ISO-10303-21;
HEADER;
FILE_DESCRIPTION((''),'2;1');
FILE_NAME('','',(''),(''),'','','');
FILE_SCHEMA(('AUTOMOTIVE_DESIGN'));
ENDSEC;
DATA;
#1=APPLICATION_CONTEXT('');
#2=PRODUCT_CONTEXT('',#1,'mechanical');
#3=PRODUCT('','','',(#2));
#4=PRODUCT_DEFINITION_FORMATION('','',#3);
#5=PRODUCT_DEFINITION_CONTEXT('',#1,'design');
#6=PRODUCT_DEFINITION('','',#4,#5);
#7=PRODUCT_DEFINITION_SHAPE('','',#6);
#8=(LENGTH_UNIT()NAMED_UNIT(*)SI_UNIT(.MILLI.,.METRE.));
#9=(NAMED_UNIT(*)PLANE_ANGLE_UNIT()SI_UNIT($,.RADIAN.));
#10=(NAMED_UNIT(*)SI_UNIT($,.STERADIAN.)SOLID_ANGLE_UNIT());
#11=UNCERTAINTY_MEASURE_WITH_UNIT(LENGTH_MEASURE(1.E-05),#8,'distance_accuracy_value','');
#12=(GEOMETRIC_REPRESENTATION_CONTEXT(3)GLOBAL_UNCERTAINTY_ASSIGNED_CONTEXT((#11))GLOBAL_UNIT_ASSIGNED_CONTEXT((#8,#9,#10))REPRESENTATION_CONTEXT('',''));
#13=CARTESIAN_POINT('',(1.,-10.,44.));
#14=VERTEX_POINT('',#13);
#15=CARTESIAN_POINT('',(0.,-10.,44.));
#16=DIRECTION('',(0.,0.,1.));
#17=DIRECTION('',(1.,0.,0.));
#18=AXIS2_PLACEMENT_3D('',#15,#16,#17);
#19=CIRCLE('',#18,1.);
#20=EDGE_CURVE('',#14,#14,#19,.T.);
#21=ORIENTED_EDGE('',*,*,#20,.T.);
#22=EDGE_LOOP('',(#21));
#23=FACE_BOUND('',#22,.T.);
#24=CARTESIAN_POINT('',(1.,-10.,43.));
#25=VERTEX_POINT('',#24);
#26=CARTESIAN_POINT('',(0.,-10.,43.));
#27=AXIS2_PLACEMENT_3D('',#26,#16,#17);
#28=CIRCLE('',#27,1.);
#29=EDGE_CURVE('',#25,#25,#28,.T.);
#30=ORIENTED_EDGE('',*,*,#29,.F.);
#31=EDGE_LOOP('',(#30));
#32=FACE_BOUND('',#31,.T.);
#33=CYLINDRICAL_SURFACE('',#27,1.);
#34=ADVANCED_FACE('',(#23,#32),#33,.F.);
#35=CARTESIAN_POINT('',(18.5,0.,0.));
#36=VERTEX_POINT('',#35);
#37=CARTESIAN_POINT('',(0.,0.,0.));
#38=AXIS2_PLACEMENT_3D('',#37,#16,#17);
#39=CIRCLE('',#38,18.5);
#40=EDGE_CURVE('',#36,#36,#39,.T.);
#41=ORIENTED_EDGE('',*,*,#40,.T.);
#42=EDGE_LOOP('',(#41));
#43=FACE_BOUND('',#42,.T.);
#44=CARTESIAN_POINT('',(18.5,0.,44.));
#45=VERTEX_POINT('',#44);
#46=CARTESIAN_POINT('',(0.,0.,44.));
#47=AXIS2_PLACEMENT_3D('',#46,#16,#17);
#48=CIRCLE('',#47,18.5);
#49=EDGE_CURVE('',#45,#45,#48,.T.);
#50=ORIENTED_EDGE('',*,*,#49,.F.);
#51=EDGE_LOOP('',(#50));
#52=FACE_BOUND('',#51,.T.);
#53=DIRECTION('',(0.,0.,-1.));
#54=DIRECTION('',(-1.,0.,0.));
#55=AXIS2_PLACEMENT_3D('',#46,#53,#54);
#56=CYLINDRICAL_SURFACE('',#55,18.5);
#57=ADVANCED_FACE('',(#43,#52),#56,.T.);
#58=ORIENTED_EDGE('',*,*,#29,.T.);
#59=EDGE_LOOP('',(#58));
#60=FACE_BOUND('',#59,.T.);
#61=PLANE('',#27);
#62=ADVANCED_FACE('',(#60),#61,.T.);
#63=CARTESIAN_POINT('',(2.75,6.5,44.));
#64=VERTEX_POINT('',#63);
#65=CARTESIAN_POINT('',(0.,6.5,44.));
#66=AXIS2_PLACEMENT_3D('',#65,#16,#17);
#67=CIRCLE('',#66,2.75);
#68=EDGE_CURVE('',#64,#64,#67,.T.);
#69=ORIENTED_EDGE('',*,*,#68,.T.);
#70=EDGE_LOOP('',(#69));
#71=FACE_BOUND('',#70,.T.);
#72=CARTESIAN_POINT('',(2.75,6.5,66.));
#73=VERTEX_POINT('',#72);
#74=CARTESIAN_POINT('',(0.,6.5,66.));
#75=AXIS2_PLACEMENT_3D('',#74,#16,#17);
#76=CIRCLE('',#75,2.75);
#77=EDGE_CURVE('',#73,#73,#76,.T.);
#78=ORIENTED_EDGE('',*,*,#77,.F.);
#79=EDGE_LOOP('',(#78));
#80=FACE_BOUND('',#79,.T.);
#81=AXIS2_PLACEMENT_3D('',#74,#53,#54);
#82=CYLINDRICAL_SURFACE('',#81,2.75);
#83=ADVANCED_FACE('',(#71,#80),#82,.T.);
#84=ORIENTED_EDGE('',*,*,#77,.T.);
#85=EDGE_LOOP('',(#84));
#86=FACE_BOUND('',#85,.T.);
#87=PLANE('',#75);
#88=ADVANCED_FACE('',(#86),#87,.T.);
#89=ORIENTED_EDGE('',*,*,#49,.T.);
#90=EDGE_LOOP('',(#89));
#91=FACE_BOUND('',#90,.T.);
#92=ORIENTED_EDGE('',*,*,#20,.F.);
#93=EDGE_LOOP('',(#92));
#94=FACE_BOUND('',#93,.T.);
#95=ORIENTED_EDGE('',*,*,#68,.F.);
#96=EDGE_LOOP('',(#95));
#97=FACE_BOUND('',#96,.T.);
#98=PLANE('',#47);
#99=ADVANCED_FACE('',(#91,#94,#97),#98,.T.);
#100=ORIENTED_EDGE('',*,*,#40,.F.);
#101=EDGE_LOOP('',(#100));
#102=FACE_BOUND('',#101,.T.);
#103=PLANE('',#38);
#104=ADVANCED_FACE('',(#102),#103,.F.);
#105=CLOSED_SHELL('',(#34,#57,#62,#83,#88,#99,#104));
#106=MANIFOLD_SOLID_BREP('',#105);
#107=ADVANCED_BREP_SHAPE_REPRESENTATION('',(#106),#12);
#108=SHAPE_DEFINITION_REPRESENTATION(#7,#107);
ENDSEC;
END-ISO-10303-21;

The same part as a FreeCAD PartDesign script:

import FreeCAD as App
import Part
import Sketcher
from FreeCAD import Vector
Q = App.Units.Quantity

doc = App.newDocument("Part")
body = doc.addObject("PartDesign::Body", "Body")

# Sketch on XY plane
sketch1 = body.newObject("Sketcher::SketchObject", "Sketch")
sketch1.AttachmentSupport = (doc.getObject("XY_Plane"), [""])
sketch1.MapMode = "FlatFace"
sketch1.addGeometry(Part.Circle(Vector(0, 0, 0), Vector(0, 0, 1), 18), False)
sketch1.addConstraint([
    Sketcher.Constraint("Coincident", 0, 3, -1, 1),
    Sketcher.Constraint("Diameter", 0, Q("37 mm")),
])
pad1 = body.newObject("PartDesign::Pad", "Pad")
pad1.Profile = sketch1
pad1.Length = 44

# Sketch on XY plane
sketch2 = body.newObject("Sketcher::SketchObject", "Sketch001")
sketch2.AttachmentSupport = (doc.getObject("XY_Plane"), [""])
sketch2.MapMode = "FlatFace"
sketch2.AttachmentOffset = App.Placement(Vector(0, 0, 44), App.Rotation())
sketch2.addGeometry(Part.Circle(Vector(0, 6.5, 0), Vector(0, 0, 1), 2.8), False)
sketch2.addConstraint([
    Sketcher.Constraint("PointOnObject", 0, 3, -2),
    Sketcher.Constraint("Diameter", 0, Q("5.5 mm")),
    Sketcher.Constraint("DistanceY", -1, 1, 0, 3, Q("6.5 mm")),
])
pad2 = body.newObject("PartDesign::Pad", "Pad001")
pad2.Profile = sketch2
pad2.Length = 22

# Sketch on XY plane
sketch3 = body.newObject("Sketcher::SketchObject", "Sketch002")
sketch3.AttachmentSupport = (doc.getObject("XY_Plane"), [""])
sketch3.MapMode = "FlatFace"
sketch3.AttachmentOffset = App.Placement(Vector(0, 0, 44), App.Rotation())
sketch3.addGeometry(Part.Circle(Vector(0, -10, 0), Vector(0, 0, 1), 1), False)
sketch3.addConstraint([
    Sketcher.Constraint("PointOnObject", 0, 3, -2),
    Sketcher.Constraint("Diameter", 0, Q("2 mm")),
    Sketcher.Constraint("DistanceY", 0, 3, -1, 1, Q("10 mm")),
])
pocket1 = body.newObject("PartDesign::Pocket", "Pocket")
pocket1.Profile = sketch3
pocket1.Length = 1

doc.recompute()
